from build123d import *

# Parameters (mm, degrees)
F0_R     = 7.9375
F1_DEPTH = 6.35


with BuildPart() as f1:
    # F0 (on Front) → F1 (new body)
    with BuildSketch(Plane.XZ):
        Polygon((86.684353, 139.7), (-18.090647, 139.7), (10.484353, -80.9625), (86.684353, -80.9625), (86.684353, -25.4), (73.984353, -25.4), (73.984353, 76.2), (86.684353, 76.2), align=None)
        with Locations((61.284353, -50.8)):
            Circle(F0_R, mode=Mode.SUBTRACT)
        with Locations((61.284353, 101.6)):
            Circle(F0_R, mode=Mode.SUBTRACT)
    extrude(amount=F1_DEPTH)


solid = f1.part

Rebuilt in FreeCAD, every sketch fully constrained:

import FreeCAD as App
import Part
import Sketcher
from FreeCAD import Vector
Q = App.Units.Quantity

doc = App.newDocument("Part")
body = doc.addObject("PartDesign::Body", "Body")

# Sketch on XZ plane
sketch1 = doc.addObject("Sketcher::SketchObject", "Sketch")
body.addObject(sketch1)
sketch1.AttachmentSupport = (doc.XZ_Plane, [""])
sketch1.MapMode = "FlatFace"
sketch1.addGeometry(Part.LineSegment(Vector(87, 140, 0), Vector(-18, 140, 0)), False)
sketch1.addGeometry(Part.LineSegment(Vector(-18, 140, 0), Vector(10, -81, 0)), False)
sketch1.addGeometry(Part.LineSegment(Vector(10, -81, 0), Vector(87, -81, 0)), False)
sketch1.addGeometry(Part.LineSegment(Vector(87, -81, 0), Vector(87, -25, 0)), False)
sketch1.addGeometry(Part.LineSegment(Vector(87, -25, 0), Vector(74, -25, 0)), False)
sketch1.addGeometry(Part.LineSegment(Vector(74, -25, 0), Vector(74, 76, 0)), False)
sketch1.addGeometry(Part.LineSegment(Vector(74, 76, 0), Vector(87, 76, 0)), False)
sketch1.addGeometry(Part.LineSegment(Vector(87, 76, 0), Vector(87, 140, 0)), False)
sketch1.addGeometry(Part.Circle(Vector(61, -51, 0), Vector(0, 0, 1), 8), False)
sketch1.addGeometry(Part.Circle(Vector(61, 102, 0), Vector(0, 0, 1), 8), False)
sketch1.addConstraint(Sketcher.Constraint("Coincident", 0, 2, 1, 1))
sketch1.addConstraint(Sketcher.Constraint("Coincident", 1, 2, 2, 1))
sketch1.addConstraint(Sketcher.Constraint("Coincident", 2, 2, 3, 1))
sketch1.addConstraint(Sketcher.Constraint("Coincident", 3, 2, 4, 1))
sketch1.addConstraint(Sketcher.Constraint("Coincident", 4, 2, 5, 1))
sketch1.addConstraint(Sketcher.Constraint("Coincident", 5, 2, 6, 1))
sketch1.addConstraint(Sketcher.Constraint("Coincident", 6, 2, 7, 1))
sketch1.addConstraint(Sketcher.Constraint("Coincident", 7, 2, 0, 1))
sketch1.addConstraint(Sketcher.Constraint("Horizontal", 0))
sketch1.addConstraint(Sketcher.Constraint("Horizontal", 2))
sketch1.addConstraint(Sketcher.Constraint("Vertical", 3))
sketch1.addConstraint(Sketcher.Constraint("Horizontal", 4))
sketch1.addConstraint(Sketcher.Constraint("Vertical", 5))
sketch1.addConstraint(Sketcher.Constraint("Horizontal", 6))
sketch1.addConstraint(Sketcher.Constraint("Vertical", 7))
sketch1.addConstraint(Sketcher.Constraint("Equal", 8, 9))
sketch1.addConstraint(Sketcher.Constraint("Vertical", 8, 3, 9, 3))
sketch1.addConstraint(Sketcher.Constraint("Vertical", 3, 2, 6, 2))
sketch1.addConstraint(Sketcher.Constraint("DistanceX", 2, 1, 2, 2, Q("3 in")))
sketch1.addConstraint(Sketcher.Constraint("DistanceY", 5, 1, 5, 2, Q("4 in")))
sketch1.addConstraint(Sketcher.Constraint("Diameter", 8, Q("0.625 in")))
sketch1.addConstraint(Sketcher.Constraint("DistanceX", 4, 2, 4, 1, Q("0.5 in")))
sketch1.addConstraint(Sketcher.Constraint("DistanceY", 7, 1, 7, 2, Q("2.5 in")))
sketch1.addConstraint(Sketcher.Constraint("DistanceY", 8, 3, -1, 1, Q("2 in")))
sketch1.addConstraint(Sketcher.Constraint("DistanceY", -1, 1, 9, 3, Q("4 in")))
sketch1.addConstraint(Sketcher.Constraint("DistanceY", 3, 2, -1, 1, Q("1 in")))
sketch1.addConstraint(Sketcher.Constraint("DistanceX", 1, 2, 8, 3, Q("2 in")))
sketch1.addConstraint(Sketcher.Constraint("DistanceX", 0, 2, 0, 1, Q("4.125 in")))
sketch1.addConstraint(Sketcher.Constraint("DistanceY", 3, 1, 3, 2, Q("2.1875 in")))
sketch1.addConstraint(Sketcher.Constraint("DistanceX", -1, 1, 8, 3, Q("61.284353 mm")))
pad1 = doc.addObject("PartDesign::Pad", "Pad")
body.addObject(pad1)
pad1.Profile = sketch1
pad1.Length = Q("0.25 in")

doc.recompute()
